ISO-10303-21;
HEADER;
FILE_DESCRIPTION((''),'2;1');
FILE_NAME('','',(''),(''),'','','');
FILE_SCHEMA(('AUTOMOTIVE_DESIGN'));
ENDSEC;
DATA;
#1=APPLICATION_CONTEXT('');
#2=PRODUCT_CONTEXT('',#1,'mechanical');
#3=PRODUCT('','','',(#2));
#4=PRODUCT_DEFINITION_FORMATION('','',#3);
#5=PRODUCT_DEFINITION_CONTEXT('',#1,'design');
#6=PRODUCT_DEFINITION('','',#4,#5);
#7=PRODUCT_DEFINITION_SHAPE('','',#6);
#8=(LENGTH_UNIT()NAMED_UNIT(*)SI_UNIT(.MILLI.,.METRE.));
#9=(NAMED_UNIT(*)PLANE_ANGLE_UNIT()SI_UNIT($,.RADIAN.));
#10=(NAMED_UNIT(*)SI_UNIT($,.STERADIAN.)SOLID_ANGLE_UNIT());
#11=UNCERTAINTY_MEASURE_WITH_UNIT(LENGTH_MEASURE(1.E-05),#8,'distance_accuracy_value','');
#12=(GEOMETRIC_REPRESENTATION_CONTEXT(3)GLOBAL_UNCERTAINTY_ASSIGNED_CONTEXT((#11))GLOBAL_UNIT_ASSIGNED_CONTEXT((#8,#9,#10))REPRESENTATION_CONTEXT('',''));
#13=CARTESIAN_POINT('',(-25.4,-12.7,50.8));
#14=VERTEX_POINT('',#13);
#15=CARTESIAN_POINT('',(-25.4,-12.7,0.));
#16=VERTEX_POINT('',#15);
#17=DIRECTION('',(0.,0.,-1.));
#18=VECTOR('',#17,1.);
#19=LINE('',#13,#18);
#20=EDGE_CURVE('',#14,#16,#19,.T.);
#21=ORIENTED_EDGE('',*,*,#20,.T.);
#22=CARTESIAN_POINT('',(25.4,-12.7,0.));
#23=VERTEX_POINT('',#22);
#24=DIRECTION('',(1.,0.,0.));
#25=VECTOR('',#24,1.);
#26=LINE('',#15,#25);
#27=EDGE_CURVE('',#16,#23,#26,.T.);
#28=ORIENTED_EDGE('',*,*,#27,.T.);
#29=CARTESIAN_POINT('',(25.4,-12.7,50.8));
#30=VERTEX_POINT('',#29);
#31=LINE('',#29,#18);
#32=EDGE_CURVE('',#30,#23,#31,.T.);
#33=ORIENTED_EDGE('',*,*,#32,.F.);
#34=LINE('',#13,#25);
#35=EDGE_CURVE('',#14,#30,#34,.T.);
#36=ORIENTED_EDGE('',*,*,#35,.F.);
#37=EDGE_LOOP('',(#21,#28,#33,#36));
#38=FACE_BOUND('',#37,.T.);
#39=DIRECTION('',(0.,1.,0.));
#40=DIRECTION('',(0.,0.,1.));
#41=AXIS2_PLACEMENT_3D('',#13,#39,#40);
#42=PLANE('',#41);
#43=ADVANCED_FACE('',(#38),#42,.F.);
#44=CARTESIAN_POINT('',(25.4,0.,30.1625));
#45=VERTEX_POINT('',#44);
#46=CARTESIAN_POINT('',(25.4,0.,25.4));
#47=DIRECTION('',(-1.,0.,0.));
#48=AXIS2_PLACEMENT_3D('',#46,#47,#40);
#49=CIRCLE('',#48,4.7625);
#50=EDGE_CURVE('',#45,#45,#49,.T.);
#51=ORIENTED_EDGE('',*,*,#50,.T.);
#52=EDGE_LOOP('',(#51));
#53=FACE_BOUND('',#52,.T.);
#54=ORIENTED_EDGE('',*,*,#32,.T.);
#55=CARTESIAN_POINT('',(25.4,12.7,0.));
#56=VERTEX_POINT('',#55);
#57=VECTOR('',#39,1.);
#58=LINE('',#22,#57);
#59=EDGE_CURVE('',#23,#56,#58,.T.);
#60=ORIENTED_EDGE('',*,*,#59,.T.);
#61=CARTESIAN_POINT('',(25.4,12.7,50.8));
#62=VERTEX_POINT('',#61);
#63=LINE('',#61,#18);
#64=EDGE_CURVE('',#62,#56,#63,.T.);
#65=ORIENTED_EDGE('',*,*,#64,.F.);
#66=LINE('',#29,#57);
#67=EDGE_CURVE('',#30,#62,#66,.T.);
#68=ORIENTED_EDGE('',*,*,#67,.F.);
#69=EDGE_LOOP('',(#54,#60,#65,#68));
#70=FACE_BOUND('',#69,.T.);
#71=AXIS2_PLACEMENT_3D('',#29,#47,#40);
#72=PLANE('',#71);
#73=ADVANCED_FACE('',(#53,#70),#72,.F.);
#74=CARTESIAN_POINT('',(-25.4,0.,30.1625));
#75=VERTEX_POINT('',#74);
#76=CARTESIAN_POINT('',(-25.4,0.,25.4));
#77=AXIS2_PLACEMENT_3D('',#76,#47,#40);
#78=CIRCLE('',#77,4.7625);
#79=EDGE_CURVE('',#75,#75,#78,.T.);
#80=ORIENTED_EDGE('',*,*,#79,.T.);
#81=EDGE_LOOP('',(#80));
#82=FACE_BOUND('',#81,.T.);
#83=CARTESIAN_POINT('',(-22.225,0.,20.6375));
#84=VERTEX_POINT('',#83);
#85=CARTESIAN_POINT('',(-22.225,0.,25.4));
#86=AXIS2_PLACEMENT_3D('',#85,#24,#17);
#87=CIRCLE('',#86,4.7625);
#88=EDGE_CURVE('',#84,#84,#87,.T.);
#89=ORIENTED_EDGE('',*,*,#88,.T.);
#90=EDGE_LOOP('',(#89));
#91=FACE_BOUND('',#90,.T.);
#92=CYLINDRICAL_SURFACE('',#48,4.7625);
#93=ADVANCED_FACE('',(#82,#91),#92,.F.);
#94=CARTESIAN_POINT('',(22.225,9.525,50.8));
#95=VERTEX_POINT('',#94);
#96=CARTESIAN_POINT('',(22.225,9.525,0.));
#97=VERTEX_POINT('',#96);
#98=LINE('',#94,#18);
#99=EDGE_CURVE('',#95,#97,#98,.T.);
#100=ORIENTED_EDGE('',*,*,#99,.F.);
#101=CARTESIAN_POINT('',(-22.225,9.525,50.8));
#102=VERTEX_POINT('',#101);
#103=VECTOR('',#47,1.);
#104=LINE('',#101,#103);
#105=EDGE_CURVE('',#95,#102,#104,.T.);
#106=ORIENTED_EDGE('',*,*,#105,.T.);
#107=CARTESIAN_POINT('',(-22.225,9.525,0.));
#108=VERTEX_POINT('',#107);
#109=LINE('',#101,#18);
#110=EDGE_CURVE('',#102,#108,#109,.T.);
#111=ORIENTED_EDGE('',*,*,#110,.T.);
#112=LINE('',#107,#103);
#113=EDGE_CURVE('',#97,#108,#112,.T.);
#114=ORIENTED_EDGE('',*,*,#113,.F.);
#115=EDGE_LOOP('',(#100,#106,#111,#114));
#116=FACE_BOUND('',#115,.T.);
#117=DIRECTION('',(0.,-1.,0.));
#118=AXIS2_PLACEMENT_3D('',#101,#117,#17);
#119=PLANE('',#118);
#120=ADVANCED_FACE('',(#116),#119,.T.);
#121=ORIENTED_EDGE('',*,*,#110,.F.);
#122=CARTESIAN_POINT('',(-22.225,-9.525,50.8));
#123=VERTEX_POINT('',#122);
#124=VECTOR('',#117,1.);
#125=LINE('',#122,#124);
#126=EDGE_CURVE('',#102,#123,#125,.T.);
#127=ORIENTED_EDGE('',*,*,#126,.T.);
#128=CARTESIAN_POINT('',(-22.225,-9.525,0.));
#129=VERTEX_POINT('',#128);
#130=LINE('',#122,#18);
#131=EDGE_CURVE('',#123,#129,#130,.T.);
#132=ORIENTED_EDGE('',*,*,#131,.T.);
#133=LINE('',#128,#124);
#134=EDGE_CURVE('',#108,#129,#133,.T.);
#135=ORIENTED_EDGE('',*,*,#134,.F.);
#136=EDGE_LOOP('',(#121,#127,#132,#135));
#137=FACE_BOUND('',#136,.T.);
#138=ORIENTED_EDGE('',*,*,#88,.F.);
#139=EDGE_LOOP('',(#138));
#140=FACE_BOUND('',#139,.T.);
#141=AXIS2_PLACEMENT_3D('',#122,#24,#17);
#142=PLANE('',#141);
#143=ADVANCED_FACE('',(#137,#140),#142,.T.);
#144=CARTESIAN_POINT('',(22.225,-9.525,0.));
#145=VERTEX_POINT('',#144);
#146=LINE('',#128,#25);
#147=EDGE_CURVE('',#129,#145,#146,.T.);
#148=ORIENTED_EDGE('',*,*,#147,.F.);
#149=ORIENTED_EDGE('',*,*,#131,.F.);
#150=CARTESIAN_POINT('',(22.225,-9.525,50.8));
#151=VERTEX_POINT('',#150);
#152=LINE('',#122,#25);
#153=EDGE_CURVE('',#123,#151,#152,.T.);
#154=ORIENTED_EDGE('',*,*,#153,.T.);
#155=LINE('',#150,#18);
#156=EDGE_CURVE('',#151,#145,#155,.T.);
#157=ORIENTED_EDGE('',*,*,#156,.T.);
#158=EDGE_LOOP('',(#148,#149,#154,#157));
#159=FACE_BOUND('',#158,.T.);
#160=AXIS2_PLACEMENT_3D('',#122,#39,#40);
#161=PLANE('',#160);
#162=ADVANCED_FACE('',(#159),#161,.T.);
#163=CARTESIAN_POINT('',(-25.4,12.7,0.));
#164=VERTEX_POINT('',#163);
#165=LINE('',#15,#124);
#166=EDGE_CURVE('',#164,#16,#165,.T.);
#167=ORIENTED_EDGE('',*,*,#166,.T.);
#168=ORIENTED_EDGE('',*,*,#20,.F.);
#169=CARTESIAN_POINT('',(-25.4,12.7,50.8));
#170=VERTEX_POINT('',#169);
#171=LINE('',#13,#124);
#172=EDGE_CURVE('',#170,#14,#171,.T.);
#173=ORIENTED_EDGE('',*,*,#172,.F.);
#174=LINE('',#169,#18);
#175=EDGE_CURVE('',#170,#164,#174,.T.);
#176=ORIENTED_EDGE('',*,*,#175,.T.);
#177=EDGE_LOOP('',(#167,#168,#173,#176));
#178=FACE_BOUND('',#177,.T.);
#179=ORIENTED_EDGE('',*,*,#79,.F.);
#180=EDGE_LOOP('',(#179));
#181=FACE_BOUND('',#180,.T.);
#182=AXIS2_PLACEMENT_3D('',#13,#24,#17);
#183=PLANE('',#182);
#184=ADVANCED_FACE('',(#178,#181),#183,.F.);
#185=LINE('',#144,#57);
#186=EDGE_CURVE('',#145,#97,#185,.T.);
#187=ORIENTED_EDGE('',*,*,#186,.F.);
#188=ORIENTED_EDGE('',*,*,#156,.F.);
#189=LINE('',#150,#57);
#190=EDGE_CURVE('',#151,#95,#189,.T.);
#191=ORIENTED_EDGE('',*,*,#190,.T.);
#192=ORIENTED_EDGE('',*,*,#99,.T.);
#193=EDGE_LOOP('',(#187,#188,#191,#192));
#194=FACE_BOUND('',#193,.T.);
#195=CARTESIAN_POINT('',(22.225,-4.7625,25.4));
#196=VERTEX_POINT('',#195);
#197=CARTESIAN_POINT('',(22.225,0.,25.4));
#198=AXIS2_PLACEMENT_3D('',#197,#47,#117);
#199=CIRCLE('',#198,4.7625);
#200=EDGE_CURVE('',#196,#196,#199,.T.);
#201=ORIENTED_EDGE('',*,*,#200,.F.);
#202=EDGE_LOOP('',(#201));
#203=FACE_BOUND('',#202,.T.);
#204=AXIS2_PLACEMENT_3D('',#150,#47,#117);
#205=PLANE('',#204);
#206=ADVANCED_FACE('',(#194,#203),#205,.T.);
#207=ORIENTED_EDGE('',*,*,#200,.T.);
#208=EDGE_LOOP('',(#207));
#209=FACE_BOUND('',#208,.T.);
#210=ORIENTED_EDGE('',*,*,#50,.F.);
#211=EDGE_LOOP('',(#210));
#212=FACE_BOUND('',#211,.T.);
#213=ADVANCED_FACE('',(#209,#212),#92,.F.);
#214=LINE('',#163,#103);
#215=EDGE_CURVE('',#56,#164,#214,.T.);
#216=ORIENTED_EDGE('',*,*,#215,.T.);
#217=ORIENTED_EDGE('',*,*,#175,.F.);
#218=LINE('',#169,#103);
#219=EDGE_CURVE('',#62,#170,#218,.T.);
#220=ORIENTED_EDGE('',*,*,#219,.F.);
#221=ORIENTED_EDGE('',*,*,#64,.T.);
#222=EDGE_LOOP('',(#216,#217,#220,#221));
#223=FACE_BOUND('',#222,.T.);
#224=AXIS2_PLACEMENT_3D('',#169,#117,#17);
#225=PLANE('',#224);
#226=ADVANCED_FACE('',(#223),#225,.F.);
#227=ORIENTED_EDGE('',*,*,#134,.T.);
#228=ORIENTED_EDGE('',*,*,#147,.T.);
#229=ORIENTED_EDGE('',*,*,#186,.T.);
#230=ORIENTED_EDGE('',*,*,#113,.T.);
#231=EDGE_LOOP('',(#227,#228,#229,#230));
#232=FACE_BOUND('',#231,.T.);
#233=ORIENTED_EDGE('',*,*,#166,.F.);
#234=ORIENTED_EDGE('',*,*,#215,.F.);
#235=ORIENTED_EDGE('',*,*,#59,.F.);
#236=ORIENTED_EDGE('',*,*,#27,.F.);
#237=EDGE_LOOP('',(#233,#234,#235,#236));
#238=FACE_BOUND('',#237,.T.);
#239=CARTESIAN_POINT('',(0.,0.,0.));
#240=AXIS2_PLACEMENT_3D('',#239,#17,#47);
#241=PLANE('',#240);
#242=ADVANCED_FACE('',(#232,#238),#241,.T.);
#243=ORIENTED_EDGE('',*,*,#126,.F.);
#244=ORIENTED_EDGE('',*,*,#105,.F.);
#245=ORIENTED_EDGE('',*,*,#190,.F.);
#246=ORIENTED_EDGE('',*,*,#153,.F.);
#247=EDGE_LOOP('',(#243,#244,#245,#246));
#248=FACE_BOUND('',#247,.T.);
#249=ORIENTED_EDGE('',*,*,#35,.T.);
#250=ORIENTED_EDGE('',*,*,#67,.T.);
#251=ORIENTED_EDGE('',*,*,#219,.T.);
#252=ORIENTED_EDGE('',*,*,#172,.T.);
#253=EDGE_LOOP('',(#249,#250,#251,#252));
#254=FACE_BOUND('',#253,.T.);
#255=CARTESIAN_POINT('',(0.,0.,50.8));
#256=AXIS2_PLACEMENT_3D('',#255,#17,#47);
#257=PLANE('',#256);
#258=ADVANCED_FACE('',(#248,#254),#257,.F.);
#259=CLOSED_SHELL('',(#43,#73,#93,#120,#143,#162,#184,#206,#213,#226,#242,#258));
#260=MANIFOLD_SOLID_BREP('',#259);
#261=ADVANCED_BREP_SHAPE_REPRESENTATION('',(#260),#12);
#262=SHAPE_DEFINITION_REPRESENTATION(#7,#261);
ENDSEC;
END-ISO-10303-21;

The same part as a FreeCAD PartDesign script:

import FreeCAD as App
import Part
import Sketcher
Q = App.Units.Quantity


def add_polygon(sketch, points):
    """Adds a closed chain of lines whose ends are joined by coincident constraints."""
    first, n = sketch.GeometryCount, len(points)
    for a, b in zip(points, points[1:] + points[:1]):
        sketch.addGeometry(Part.LineSegment(App.Vector(*a, 0), App.Vector(*b, 0)), False)
    for i in range(n):
        sketch.addConstraint(Sketcher.Constraint("Coincident", first + i, 2, first + (i + 1) % n, 1))

doc = App.newDocument("Part")
body = doc.addObject("PartDesign::Body", "Body")

# Sketch on XY plane
sketch1 = body.newObject("Sketcher::SketchObject", "Sketch")
sketch1.AttachmentSupport = (doc.getObject("XY_Plane"), [""])
sketch1.MapMode = "FlatFace"
add_polygon(sketch1, [(-25, 13), (-25, -13), (25, -13), (25, 13)])  # lines 0-3
add_polygon(sketch1, [(22, -10), (-22, -10), (-22, 10), (22, 10)])  # lines 4-7
sketch1.addConstraint([
    Sketcher.Constraint("Vertical", 0),
    Sketcher.Constraint("Horizontal", 1),
    Sketcher.Constraint("Vertical", 2),
    Sketcher.Constraint("Horizontal", 3),
    Sketcher.Constraint("Horizontal", 4),
    Sketcher.Constraint("Vertical", 5),
    Sketcher.Constraint("Horizontal", 6),
    Sketcher.Constraint("Vertical", 7),
    Sketcher.Constraint("Symmetric", 0, 2, 2, 2, -1, 1),
    Sketcher.Constraint("Symmetric", 4, 2, 6, 2, -1, 1),
    Sketcher.Constraint("DistanceX", 1, 1, 1, 2, Q("2 in")),
    Sketcher.Constraint("DistanceY", 0, 2, 0, 1, Q("1 in")),
    Sketcher.Constraint("DistanceX", 4, 2, 4, 1, Q("1.75 in")),
    Sketcher.Constraint("DistanceY", 5, 1, 5, 2, Q("0.75 in")),
])
pad1 = body.newObject("PartDesign::Pad", "Pad")
pad1.Profile = sketch1
pad1.Length = Q("2 in")

# Sketch on YZ plane
sketch2 = body.newObject("Sketcher::SketchObject", "Sketch001")
sketch2.AttachmentSupport = (doc.getObject("YZ_Plane"), [""])
sketch2.MapMode = "FlatFace"
sketch2.AttachmentOffset = App.Placement(App.Vector(0, 0, -1 * 25.4), App.Rotation())
sketch2.addGeometry(Part.Circle(App.Vector(0, 25.4, 0), App.Vector(0, 0, 1), 4.8), False)
sketch2.addConstraint([
    Sketcher.Constraint("PointOnObject", 0, 3, -2),
    Sketcher.Constraint("Diameter", 0, Q("0.375 in")),
    Sketcher.Constraint("DistanceY", -1, 1, 0, 3, Q("1 in")),
])
pocket1 = body.newObject("PartDesign::Pocket", "Pocket")
pocket1.Profile = sketch2
pocket1.Type = "ThroughAll"
pocket1.Reversed = True

doc.recompute()
